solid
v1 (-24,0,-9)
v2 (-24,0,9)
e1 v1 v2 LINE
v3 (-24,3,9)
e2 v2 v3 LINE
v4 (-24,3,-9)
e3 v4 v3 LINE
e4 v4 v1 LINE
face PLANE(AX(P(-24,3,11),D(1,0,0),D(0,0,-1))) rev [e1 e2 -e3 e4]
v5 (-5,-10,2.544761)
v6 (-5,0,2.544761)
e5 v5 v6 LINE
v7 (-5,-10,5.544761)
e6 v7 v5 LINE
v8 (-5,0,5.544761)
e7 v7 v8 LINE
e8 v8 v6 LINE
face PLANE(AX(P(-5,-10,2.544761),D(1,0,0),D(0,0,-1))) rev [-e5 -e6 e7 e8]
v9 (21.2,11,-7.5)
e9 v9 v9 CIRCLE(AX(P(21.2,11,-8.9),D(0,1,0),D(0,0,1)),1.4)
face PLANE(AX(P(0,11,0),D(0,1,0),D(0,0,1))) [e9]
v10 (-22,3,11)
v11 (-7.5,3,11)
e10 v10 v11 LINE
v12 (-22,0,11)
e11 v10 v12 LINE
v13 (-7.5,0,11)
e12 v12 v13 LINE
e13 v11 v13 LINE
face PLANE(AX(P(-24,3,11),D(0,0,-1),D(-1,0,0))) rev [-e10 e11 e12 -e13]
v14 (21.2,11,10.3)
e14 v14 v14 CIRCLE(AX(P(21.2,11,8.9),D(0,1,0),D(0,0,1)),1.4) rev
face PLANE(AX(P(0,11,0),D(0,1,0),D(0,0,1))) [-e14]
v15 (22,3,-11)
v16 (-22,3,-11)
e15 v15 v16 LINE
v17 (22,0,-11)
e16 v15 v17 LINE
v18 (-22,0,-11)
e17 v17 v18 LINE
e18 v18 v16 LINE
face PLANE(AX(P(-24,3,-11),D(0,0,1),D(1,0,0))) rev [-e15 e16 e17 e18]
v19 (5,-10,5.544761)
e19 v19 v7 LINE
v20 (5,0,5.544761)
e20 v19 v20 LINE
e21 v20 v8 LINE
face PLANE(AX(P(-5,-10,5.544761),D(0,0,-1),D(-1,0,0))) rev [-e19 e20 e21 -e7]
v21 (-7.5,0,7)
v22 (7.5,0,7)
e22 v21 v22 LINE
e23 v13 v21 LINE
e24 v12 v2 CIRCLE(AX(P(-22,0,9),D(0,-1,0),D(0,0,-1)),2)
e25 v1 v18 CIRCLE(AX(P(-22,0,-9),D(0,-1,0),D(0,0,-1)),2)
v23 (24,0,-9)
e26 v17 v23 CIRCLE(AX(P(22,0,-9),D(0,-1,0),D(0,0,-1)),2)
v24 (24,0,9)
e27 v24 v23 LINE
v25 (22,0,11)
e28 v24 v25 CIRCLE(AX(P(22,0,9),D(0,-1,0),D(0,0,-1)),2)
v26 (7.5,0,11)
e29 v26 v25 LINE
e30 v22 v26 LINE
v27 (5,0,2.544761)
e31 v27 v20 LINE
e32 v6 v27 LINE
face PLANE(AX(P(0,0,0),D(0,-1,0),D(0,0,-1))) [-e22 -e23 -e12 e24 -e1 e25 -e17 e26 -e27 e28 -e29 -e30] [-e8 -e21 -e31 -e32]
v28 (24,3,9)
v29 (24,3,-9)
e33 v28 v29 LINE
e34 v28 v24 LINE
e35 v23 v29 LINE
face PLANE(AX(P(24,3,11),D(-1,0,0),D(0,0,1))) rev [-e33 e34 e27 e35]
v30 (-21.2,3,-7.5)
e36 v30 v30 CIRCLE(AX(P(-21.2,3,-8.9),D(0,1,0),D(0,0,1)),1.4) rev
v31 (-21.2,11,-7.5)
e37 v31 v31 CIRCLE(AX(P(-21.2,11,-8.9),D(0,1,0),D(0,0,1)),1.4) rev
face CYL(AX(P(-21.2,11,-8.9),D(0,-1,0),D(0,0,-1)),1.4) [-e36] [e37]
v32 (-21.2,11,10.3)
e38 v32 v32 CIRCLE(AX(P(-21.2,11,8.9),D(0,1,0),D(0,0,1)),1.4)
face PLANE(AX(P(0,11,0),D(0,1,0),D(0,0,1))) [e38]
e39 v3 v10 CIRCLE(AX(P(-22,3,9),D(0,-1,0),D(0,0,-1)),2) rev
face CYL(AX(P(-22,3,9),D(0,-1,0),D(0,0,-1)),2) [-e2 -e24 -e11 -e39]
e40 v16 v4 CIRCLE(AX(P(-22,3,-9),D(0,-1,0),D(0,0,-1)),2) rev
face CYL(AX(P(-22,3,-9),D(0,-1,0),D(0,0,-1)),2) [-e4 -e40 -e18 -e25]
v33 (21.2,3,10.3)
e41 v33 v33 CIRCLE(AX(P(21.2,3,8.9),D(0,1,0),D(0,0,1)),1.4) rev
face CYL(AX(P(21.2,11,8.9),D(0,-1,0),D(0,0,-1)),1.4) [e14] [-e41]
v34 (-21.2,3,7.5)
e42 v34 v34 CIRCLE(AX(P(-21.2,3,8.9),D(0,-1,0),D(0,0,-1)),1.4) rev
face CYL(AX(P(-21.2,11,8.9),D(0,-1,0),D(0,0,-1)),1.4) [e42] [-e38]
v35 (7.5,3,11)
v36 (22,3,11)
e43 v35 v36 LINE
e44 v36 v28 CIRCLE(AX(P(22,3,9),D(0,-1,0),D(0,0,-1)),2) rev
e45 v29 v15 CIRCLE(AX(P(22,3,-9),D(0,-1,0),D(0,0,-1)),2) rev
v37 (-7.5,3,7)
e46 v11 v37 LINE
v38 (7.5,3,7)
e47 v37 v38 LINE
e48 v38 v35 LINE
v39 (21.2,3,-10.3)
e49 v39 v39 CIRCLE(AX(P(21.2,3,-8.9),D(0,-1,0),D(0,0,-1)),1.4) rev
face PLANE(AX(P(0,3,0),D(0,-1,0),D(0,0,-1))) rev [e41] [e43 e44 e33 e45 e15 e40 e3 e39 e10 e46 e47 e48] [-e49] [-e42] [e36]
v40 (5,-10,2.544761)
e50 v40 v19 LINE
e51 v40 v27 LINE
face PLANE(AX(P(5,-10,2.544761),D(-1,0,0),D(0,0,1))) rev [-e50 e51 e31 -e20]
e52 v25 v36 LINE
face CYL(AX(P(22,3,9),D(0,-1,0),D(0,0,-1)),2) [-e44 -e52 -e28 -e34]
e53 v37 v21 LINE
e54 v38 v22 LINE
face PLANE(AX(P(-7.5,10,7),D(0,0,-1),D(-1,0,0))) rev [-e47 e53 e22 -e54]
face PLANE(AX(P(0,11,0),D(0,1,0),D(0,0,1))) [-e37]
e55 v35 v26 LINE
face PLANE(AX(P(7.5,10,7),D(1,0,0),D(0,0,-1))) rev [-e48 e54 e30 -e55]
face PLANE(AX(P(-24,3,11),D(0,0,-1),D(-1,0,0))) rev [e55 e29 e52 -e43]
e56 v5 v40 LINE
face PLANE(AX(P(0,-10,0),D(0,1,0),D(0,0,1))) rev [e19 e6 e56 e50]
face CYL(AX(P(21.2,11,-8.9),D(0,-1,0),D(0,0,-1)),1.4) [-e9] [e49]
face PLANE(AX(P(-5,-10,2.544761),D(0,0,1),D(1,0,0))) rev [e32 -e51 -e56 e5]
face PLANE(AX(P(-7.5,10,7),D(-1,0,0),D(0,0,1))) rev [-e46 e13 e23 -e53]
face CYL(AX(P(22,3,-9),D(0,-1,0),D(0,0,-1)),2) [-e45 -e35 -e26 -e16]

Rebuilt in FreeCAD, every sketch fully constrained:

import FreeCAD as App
import Part
import Sketcher
Q = App.Units.Quantity


def edges_at(feature, points):
    """Names of the edges that pass closest to the given points."""
    edges = feature.Shape.Edges
    near = lambda p: min(range(len(edges)), key=lambda i: edges[i].distToShape(Part.Vertex(*p))[0])
    return sorted({f"Edge{near(p) + 1}" for p in points})


def add_polygon(sketch, points):
    """Adds a closed chain of lines whose ends are joined by coincident constraints."""
    first, n = sketch.GeometryCount, len(points)
    for a, b in zip(points, points[1:] + points[:1]):
        sketch.addGeometry(Part.LineSegment(App.Vector(*a, 0), App.Vector(*b, 0)), False)
    for i in range(n):
        sketch.addConstraint(Sketcher.Constraint("Coincident", first + i, 2, first + (i + 1) % n, 1))

doc = App.newDocument("Part")
body = doc.addObject("PartDesign::Body", "Body")

# Sketch on XZ plane
sketch1 = doc.addObject("Sketcher::SketchObject", "Sketch")
body.addObject(sketch1)
sketch1.AttachmentSupport = (doc.XZ_Plane, [""])
sketch1.MapMode = "FlatFace"
add_polygon(sketch1, [(-24, -11), (-24, 11), (24, 11), (24, -11)])  # lines 0-3
sketch1.addConstraint([
    Sketcher.Constraint("Vertical", 0),
    Sketcher.Constraint("Horizontal", 1),
    Sketcher.Constraint("Vertical", 2),
    Sketcher.Constraint("Horizontal", 3),
    Sketcher.Constraint("Symmetric", 0, 2, 2, 2, -1, 1),
    Sketcher.Constraint("DistanceX", 1, 1, 1, 2, Q("48 mm")),
    Sketcher.Constraint("DistanceY", 0, 1, 0, 2, Q("22 mm")),
])
pad1 = doc.addObject("PartDesign::Pad", "Pad")
body.addObject(pad1)
pad1.Profile = sketch1
pad1.Length = 3
pad1.Reversed = True

# Sketch on XZ plane
sketch2 = doc.addObject("Sketcher::SketchObject", "Sketch001")
body.addObject(sketch2)
sketch2.AttachmentSupport = (doc.XZ_Plane, [""])
sketch2.MapMode = "FlatFace"
sketch2.AttachmentOffset = App.Placement(App.Vector(0, 0, -3), App.Rotation())
sketch2.addGeometry([
    Part.Circle(App.Vector(-21.2, -8.9, 0), App.Vector(0, 0, 1), 1.4),
    Part.Circle(App.Vector(-21.2, 8.9, 0), App.Vector(0, 0, 1), 1.4),
    Part.Circle(App.Vector(21.2, -8.9, 0), App.Vector(0, 0, 1), 1.4),
    Part.Circle(App.Vector(21.2, 8.9, 0), App.Vector(0, 0, 1), 1.4),
], False)
sketch2.addConstraint([
    Sketcher.Constraint("Equal", 0, 1),
    Sketcher.Constraint("Equal", 1, 2),
    Sketcher.Constraint("Equal", 2, 3),
    Sketcher.Constraint("Symmetric", 1, 3, 2, 3, -1, 1),
    Sketcher.Constraint("Symmetric", 0, 3, 3, 3, -1, 1),
    Sketcher.Constraint("Symmetric", 0, 3, 2, 3, -2),
    Sketcher.Constraint("Diameter", 0, Q("2.8 mm")),
    Sketcher.Constraint("DistanceX", 0, 3, -1, 1, Q("21.2 mm")),
    Sketcher.Constraint("DistanceY", 0, 3, -1, 1, Q("8.9 mm")),
])
pad2 = doc.addObject("PartDesign::Pad", "Pad001")
body.addObject(pad2)
pad2.Profile = sketch2
pad2.Length = 8
pad2.Reversed = True

# Sketch on XZ plane
sketch3 = doc.addObject("Sketcher::SketchObject", "Sketch002")
body.addObject(sketch3)
sketch3.AttachmentSupport = (doc.XZ_Plane, [""])
sketch3.MapMode = "FlatFace"
add_polygon(sketch3, [(-5, 5.5), (-5, 2.5), (5, 2.5), (5, 5.5)])  # lines 0-3
sketch3.addConstraint([
    Sketcher.Constraint("Vertical", 0),
    Sketcher.Constraint("Horizontal", 1),
    Sketcher.Constraint("Vertical", 2),
    Sketcher.Constraint("Horizontal", 3),
    Sketcher.Constraint("DistanceX", 1, 1, 1, 2, Q("10 mm")),
    Sketcher.Constraint("DistanceY", 0, 2, 0, 1, Q("3 mm")),
    Sketcher.Constraint("DistanceX", 0, 2, -1, 1, Q("5 mm")),
    Sketcher.Constraint("DistanceY", -1, 1, 0, 2, Q("2.544761 mm")),
])
pad3 = doc.addObject("PartDesign::Pad", "Pad002")
body.addObject(pad3)
pad3.Profile = sketch3
pad3.Length = 10

# Sketch on XZ plane
sketch4 = doc.addObject("Sketcher::SketchObject", "Sketch003")
body.addObject(sketch4)
sketch4.AttachmentSupport = (doc.XZ_Plane, [""])
sketch4.MapMode = "FlatFace"
add_polygon(sketch4, [(-7.5, 11), (-7.5, 7), (7.5, 7), (7.5, 11)])  # lines 0-3
sketch4.addConstraint([
    Sketcher.Constraint("Vertical", 0),
    Sketcher.Constraint("Horizontal", 1),
    Sketcher.Constraint("Vertical", 2),
    Sketcher.Constraint("Horizontal", 3),
    Sketcher.Constraint("DistanceX", 1, 1, 1, 2, Q("15 mm")),
    Sketcher.Constraint("DistanceY", 0, 2, 0, 1, Q("4 mm")),
    Sketcher.Constraint("DistanceY", -1, 1, 0, 2, Q("7 mm")),
    Sketcher.Constraint("DistanceX", 0, 2, -1, 1, Q("7.5 mm")),
])
pocket1 = doc.addObject("PartDesign::Pocket", "Pocket")
body.addObject(pocket1)
pocket1.Profile = sketch4
pocket1.Length = 10
doc.recompute()

fillet = doc.addObject("PartDesign::Fillet", "Fillet")
body.addObject(fillet)
fillet.Base = (pocket1, edges_at(pocket1, [
    (24, 1.5, 11),
    (-24, 1.5, 11),
    (-24, 1.5, -11),
    (24, 1.5, -11),
]))
fillet.Radius = 2

doc.recompute()
